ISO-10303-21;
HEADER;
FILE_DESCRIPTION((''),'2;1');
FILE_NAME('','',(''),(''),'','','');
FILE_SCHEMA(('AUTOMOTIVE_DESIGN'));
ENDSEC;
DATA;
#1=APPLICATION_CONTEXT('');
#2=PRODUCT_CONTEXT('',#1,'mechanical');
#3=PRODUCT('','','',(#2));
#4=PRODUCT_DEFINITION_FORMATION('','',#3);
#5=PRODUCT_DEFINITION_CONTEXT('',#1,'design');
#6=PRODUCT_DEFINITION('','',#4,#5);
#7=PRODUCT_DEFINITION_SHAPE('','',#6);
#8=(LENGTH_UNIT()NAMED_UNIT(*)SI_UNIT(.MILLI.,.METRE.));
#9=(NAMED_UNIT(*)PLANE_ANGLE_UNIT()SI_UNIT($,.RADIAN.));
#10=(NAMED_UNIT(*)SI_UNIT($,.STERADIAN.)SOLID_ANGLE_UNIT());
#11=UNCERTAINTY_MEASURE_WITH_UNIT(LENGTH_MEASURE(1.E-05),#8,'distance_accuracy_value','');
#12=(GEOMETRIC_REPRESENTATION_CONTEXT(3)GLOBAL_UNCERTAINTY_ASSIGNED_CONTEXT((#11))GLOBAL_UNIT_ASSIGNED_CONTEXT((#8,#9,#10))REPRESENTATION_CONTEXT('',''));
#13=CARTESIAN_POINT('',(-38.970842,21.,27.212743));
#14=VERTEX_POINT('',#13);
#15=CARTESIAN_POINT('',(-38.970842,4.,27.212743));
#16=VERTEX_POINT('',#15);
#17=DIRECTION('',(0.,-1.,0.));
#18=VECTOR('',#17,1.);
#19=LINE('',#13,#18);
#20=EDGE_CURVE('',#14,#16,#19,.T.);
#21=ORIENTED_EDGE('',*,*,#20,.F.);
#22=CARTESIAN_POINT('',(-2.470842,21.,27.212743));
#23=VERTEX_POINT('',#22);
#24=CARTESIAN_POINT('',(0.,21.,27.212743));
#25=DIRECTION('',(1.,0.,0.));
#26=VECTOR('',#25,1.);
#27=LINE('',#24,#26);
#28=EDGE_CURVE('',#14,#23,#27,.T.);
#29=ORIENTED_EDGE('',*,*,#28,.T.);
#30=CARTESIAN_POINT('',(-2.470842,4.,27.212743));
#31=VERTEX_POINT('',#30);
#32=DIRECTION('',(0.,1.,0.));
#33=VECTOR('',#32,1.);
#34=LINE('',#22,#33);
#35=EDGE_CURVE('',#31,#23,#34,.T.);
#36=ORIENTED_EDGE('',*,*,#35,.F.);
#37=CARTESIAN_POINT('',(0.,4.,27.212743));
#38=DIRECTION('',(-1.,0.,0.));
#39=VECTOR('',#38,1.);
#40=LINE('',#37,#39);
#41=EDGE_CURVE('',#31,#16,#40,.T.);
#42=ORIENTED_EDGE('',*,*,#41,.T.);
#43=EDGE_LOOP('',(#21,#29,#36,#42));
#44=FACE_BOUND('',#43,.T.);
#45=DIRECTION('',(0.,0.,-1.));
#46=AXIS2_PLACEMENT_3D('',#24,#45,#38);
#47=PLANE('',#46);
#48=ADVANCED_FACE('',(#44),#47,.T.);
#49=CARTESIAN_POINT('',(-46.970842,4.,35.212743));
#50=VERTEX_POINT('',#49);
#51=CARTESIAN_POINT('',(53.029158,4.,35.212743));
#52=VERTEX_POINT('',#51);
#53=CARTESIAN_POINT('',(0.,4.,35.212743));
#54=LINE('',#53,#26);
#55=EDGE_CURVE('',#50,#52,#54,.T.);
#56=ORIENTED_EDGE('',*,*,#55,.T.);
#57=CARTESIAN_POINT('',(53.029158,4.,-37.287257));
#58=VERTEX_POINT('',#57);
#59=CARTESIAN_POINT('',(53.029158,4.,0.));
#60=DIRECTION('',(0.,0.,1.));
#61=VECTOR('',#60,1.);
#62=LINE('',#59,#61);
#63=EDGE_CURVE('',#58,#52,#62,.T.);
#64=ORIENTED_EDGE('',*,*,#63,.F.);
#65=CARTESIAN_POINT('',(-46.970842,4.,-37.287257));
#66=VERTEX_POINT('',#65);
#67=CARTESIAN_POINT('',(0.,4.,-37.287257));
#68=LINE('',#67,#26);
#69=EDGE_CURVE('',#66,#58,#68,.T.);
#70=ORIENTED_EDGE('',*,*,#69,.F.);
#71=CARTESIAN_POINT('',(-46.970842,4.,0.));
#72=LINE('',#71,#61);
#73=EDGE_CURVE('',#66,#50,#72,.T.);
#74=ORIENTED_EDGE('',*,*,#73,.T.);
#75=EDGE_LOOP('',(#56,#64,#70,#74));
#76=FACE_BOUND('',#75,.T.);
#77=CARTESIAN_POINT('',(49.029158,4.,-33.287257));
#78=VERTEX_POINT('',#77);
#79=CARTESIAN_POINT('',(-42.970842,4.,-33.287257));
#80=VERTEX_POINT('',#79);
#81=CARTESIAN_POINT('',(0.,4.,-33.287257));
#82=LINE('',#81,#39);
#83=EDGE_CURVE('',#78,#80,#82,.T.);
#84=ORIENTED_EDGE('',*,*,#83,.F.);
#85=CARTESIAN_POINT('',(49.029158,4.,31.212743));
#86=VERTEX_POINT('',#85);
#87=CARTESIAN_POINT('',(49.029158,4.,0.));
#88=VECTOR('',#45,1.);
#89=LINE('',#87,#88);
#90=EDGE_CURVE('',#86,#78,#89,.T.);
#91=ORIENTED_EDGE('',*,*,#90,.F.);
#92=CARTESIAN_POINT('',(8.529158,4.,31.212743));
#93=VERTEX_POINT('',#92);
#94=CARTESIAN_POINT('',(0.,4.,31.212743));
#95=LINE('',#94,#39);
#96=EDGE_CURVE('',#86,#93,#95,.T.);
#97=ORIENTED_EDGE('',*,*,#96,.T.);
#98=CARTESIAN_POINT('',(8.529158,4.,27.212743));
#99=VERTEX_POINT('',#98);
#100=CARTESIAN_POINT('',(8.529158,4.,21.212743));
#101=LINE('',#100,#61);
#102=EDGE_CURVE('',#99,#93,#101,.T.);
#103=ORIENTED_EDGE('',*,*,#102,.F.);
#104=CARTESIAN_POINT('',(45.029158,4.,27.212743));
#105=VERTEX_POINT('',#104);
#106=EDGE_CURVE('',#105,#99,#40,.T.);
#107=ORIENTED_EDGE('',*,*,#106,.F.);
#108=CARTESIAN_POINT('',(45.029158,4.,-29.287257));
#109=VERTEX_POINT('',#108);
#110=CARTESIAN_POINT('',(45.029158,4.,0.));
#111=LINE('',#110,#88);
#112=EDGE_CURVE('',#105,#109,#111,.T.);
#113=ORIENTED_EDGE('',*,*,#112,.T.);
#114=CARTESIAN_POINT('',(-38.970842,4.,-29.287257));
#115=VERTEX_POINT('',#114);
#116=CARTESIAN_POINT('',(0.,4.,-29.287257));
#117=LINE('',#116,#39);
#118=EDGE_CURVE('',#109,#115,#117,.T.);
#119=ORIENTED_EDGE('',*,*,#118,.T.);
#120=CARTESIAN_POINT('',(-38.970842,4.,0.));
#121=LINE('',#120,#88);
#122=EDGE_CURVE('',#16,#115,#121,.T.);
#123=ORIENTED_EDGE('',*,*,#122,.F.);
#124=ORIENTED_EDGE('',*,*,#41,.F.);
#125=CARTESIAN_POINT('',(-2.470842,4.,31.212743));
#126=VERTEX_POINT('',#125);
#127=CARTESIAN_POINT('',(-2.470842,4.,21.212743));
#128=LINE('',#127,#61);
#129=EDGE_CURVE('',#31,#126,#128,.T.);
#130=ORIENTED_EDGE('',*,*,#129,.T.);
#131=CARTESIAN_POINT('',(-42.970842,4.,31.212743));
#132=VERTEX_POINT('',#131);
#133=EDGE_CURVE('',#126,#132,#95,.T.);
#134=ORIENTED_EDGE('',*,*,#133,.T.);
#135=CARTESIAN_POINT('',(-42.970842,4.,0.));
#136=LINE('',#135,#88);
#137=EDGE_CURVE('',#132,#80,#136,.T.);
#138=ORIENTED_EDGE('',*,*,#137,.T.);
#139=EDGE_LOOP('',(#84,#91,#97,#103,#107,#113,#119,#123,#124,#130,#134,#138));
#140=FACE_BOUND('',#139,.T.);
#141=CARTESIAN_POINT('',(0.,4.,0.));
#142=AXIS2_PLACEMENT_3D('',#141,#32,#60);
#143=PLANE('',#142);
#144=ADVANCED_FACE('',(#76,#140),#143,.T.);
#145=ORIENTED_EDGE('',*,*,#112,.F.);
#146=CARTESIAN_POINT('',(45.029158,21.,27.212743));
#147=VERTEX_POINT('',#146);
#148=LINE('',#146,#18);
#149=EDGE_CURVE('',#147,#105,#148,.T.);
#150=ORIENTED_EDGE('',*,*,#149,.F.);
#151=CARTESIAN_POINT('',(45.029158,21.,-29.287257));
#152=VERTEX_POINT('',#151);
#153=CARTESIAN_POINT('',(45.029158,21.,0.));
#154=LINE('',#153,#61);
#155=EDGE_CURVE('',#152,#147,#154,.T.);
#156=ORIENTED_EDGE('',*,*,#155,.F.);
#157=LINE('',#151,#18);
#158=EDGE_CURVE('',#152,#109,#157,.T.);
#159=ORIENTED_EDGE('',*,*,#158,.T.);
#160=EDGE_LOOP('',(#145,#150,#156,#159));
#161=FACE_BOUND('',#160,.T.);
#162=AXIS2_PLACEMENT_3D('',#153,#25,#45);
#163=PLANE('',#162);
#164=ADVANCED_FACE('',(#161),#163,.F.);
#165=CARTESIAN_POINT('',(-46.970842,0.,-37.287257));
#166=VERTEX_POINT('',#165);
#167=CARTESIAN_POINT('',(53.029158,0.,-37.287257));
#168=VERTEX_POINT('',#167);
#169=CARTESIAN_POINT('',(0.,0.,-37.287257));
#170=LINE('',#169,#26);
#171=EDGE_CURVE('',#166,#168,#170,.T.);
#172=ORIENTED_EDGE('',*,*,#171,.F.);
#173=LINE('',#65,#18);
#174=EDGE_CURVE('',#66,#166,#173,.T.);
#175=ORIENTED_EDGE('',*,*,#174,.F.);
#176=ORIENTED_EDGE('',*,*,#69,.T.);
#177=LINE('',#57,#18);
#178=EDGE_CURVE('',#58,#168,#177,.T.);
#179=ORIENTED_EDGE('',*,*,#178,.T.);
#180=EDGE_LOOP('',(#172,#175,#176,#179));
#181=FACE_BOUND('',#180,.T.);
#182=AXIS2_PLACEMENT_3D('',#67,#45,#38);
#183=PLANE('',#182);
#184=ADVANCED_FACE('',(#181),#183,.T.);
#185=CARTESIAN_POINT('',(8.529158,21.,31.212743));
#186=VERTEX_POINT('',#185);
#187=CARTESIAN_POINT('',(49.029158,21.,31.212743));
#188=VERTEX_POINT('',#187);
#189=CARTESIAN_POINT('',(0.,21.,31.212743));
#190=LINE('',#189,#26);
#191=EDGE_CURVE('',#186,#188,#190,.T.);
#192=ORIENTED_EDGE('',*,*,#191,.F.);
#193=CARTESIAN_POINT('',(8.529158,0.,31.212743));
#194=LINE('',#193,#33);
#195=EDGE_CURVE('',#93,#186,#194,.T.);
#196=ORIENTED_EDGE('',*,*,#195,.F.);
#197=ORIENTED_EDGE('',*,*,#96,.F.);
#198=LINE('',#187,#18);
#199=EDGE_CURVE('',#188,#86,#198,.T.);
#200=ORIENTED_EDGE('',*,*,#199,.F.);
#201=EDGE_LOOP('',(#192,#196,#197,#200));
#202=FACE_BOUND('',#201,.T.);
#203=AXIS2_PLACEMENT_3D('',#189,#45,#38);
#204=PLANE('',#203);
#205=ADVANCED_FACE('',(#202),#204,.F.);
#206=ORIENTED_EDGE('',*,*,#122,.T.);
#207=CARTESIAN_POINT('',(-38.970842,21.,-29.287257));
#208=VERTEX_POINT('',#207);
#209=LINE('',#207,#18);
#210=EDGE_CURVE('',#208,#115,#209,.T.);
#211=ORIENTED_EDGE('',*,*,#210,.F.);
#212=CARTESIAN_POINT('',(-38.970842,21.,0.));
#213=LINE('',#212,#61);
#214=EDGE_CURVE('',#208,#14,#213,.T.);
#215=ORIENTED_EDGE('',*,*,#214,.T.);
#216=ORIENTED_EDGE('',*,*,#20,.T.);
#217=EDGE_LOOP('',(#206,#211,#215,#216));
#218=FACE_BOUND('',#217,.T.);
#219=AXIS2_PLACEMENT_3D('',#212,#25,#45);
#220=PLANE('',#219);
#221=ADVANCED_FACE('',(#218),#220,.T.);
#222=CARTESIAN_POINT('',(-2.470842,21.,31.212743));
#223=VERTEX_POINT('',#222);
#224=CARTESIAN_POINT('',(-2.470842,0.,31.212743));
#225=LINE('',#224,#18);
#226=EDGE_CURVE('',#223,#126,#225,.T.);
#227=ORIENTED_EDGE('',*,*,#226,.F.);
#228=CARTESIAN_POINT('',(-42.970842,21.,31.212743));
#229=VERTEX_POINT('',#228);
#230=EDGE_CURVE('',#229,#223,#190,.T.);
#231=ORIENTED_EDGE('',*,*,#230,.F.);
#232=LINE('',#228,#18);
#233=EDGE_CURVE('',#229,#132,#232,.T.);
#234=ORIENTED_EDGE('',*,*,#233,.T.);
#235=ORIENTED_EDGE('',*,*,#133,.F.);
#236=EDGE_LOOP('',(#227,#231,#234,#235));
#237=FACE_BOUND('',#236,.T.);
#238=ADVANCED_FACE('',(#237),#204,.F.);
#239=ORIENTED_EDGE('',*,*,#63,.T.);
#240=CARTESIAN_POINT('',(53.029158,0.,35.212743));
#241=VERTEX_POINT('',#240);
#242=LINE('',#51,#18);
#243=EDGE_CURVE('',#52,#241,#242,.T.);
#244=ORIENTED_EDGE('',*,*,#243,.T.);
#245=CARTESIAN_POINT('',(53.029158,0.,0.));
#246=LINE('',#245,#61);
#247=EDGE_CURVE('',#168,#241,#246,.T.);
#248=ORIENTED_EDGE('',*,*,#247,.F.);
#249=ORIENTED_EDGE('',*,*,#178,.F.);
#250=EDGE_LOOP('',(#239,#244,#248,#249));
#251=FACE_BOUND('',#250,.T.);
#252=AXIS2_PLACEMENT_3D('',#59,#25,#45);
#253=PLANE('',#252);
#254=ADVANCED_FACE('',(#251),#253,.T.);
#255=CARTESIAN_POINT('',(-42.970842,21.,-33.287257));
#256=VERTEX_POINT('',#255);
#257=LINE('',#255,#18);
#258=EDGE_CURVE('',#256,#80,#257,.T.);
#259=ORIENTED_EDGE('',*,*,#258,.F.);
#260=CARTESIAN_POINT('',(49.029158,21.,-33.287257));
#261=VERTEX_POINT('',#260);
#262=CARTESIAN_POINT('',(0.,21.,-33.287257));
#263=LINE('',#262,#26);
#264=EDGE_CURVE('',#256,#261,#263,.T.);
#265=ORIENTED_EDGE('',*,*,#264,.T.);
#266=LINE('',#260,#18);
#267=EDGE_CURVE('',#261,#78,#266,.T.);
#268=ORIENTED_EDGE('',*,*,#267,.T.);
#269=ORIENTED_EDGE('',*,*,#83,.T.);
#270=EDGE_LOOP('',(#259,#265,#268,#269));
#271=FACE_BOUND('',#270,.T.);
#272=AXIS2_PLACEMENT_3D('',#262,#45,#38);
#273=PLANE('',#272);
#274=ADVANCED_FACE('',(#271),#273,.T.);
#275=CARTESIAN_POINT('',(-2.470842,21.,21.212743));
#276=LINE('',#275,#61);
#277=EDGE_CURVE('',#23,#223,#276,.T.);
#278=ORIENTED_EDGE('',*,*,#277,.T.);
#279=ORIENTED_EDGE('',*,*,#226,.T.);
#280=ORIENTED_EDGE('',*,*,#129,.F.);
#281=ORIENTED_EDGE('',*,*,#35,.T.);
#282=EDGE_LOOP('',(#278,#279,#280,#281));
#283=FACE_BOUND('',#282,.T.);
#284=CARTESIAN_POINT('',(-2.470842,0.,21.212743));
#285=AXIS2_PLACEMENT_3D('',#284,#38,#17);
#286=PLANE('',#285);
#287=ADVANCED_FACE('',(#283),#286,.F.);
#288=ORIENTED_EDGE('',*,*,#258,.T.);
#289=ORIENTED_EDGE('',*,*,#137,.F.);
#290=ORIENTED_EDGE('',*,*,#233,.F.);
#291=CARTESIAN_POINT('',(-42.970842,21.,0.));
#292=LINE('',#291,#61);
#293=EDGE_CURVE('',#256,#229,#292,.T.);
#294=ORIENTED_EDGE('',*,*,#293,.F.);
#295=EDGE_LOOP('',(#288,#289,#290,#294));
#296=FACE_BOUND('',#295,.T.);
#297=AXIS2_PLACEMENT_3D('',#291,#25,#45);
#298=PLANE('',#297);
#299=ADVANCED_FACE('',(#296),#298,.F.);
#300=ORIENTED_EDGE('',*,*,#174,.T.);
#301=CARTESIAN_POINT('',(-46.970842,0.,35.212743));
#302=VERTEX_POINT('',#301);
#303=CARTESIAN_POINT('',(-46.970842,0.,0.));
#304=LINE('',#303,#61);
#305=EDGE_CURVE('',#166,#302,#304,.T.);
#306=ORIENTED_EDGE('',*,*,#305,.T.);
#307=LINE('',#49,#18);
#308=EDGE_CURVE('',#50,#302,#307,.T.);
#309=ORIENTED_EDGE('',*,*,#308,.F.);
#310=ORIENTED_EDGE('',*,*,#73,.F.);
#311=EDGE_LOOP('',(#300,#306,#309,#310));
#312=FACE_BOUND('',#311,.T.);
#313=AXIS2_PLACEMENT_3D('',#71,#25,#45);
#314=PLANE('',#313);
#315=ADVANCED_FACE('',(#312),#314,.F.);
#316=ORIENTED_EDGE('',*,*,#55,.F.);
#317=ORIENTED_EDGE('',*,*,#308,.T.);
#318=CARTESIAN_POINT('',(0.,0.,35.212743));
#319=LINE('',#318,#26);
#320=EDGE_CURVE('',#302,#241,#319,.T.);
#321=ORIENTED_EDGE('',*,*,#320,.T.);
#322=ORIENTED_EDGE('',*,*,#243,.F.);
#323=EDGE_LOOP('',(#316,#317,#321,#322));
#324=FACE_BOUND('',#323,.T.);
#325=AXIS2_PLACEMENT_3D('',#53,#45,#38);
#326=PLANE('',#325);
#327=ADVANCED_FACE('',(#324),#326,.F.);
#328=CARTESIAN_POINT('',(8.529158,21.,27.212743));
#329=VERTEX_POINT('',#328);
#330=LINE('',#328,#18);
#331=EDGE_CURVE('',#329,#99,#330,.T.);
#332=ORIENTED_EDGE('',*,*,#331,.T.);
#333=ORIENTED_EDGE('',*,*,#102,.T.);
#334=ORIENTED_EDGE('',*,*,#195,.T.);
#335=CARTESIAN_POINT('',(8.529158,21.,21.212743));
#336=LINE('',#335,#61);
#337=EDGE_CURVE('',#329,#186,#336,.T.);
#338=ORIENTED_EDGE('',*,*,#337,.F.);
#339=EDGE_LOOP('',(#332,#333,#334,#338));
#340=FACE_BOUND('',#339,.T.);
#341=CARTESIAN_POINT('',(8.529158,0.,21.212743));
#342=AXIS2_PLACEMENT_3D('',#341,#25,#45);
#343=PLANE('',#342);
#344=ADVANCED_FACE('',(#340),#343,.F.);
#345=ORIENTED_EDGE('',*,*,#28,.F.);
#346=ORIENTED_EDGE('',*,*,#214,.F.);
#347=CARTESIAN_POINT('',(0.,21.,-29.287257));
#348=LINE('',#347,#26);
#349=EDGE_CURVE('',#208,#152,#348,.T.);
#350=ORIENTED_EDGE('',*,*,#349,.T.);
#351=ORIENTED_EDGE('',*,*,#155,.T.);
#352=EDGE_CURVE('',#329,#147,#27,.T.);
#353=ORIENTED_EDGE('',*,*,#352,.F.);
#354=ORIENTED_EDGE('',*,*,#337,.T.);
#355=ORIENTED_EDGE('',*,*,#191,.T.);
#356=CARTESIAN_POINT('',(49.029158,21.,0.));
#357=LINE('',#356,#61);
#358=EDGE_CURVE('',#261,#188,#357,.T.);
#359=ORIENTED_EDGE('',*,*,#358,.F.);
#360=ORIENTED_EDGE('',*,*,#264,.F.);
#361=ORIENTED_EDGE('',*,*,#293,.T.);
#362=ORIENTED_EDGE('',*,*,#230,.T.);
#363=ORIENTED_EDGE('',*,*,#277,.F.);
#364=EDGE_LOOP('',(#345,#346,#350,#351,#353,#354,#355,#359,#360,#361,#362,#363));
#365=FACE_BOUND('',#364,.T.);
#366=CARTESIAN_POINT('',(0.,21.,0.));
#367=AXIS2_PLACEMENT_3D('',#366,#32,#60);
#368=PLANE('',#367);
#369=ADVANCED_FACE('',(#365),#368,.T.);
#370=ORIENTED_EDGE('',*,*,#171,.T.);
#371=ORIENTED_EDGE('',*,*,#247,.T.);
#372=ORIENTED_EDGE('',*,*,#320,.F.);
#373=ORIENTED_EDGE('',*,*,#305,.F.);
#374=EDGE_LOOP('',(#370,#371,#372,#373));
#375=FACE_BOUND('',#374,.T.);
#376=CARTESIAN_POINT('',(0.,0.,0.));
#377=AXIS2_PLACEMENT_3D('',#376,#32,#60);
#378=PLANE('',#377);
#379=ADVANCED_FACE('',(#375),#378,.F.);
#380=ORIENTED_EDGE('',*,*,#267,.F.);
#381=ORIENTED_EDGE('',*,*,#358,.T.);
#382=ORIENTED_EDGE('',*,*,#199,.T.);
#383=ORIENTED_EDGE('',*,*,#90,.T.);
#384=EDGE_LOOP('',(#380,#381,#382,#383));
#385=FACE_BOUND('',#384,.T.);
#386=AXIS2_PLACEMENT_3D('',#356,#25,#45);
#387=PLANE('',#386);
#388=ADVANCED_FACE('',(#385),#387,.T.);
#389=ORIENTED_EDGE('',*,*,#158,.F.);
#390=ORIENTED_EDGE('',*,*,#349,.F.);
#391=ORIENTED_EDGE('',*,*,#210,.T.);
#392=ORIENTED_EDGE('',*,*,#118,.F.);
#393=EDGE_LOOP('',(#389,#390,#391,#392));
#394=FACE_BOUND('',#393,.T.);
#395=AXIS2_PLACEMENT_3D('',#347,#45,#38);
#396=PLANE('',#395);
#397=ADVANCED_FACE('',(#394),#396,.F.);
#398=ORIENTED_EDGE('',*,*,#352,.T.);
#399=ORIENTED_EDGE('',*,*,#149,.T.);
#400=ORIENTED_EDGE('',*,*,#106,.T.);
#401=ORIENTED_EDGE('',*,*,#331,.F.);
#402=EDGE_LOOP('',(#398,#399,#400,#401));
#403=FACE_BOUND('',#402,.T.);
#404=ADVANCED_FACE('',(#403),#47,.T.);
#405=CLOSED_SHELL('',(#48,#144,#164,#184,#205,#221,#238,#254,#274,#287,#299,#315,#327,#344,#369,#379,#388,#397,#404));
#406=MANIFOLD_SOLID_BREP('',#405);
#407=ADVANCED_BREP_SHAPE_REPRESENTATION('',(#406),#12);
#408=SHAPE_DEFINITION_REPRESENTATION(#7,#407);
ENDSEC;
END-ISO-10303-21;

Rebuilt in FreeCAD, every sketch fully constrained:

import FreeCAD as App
import Part
import Sketcher
Q = App.Units.Quantity

doc = App.newDocument("Part")
body = doc.addObject("PartDesign::Body", "Body")

# Sketch on XZ plane
sketch1 = body.newObject("Sketcher::SketchObject", "Sketch")
sketch1.AttachmentSupport = (doc.getObject("XZ_Plane"), [""])
sketch1.MapMode = "FlatFace"
sketch1.addGeometry([
    Part.LineSegment(App.Vector(53.029158, -37.287257, 0), App.Vector(-46.970842, -37.287257, 0)),
    Part.LineSegment(App.Vector(-46.970842, -37.287257, 0), App.Vector(-46.970842, 35.212743, 0)),
    Part.LineSegment(App.Vector(-46.970842, 35.212743, 0), App.Vector(53.029158, 35.212743, 0)),
    Part.LineSegment(App.Vector(53.029158, 35.212743, 0), App.Vector(53.029158, -37.287257, 0)),
], False)
sketch1.addConstraint([
    Sketcher.Constraint("Coincident", 0, 2, 1, 1),
    Sketcher.Constraint("Coincident", 1, 2, 2, 1),
    Sketcher.Constraint("Coincident", 2, 2, 3, 1),
    Sketcher.Constraint("Coincident", 3, 2, 0, 1),
    Sketcher.Constraint("Horizontal", 0),
    Sketcher.Constraint("Vertical", 1),
    Sketcher.Constraint("Horizontal", 2),
    Sketcher.Constraint("Vertical", 3),
    Sketcher.Constraint("DistanceX", 0, 2, 0, 1, Q("100 mm")),
    Sketcher.Constraint("DistanceY", 1, 1, 1, 2, Q("72.5 mm")),
    Sketcher.Constraint("DistanceX", 0, 2, -1, 1, Q("46.970842 mm")),
    Sketcher.Constraint("DistanceY", 0, 2, -1, 1, Q("37.287257 mm")),
])
pad1 = body.newObject("PartDesign::Pad", "Pad")
pad1.Profile = sketch1
pad1.Length = 4
pad1.Reversed = True

# Sketch on XZ plane
sketch2 = body.newObject("Sketcher::SketchObject", "Sketch001")
sketch2.AttachmentSupport = (doc.getObject("XZ_Plane"), [""])
sketch2.MapMode = "FlatFace"
sketch2.addGeometry([
    Part.LineSegment(App.Vector(-42.970842, 31.212743, 0), App.Vector(49.029158, 31.212743, 0)),  # 0
    Part.LineSegment(App.Vector(49.029158, 31.212743, 0), App.Vector(49.029158, -33.287257, 0)),  # 1
    Part.LineSegment(App.Vector(49.029158, -33.287257, 0), App.Vector(-42.970842, -33.287257, 0)),  # 2
    Part.LineSegment(App.Vector(-42.970842, -33.287257, 0), App.Vector(-42.970842, 31.212743, 0)),  # 3
    Part.LineSegment(App.Vector(45.029158, -29.287257, 0), App.Vector(45.029158, 27.212743, 0)),  # 4
    Part.LineSegment(App.Vector(45.029158, 27.212743, 0), App.Vector(-38.970842, 27.212743, 0)),  # 5
    Part.LineSegment(App.Vector(-38.970842, 27.212743, 0), App.Vector(-38.970842, -29.287257, 0)),  # 6
    Part.LineSegment(App.Vector(-38.970842, -29.287257, 0), App.Vector(45.029158, -29.287257, 0)),  # 7
], False)
sketch2.addConstraint([
    Sketcher.Constraint("Coincident", 0, 2, 1, 1),
    Sketcher.Constraint("Coincident", 1, 2, 2, 1),
    Sketcher.Constraint("Coincident", 2, 2, 3, 1),
    Sketcher.Constraint("Coincident", 3, 2, 0, 1),
    Sketcher.Constraint("Coincident", 4, 2, 5, 1),
    Sketcher.Constraint("Coincident", 5, 2, 6, 1),
    Sketcher.Constraint("Coincident", 6, 2, 7, 1),
    Sketcher.Constraint("Coincident", 7, 2, 4, 1),
    Sketcher.Constraint("Horizontal", 0),
    Sketcher.Constraint("Vertical", 1),
    Sketcher.Constraint("Horizontal", 2),
    Sketcher.Constraint("Vertical", 3),
    Sketcher.Constraint("Vertical", 4),
    Sketcher.Constraint("Horizontal", 5),
    Sketcher.Constraint("Vertical", 6),
    Sketcher.Constraint("Horizontal", 7),
    Sketcher.Constraint("DistanceX", 0, 1, 0, 2, Q("92 mm")),
    Sketcher.Constraint("DistanceX", 5, 2, 5, 1, Q("84 mm")),
    Sketcher.Constraint("DistanceY", 1, 2, 1, 1, Q("64.5 mm")),
    Sketcher.Constraint("DistanceY", 4, 1, 4, 2, Q("56.5 mm")),
    Sketcher.Constraint("DistanceX", 4, 2, 0, 2, Q("4 mm")),
    Sketcher.Constraint("DistanceY", 4, 2, 0, 2, Q("4 mm")),
    Sketcher.Constraint("DistanceX", -1, 1, 0, 2, Q("49.029158 mm")),
    Sketcher.Constraint("DistanceY", -1, 1, 0, 2, Q("31.212743 mm")),
])
pad2 = body.newObject("PartDesign::Pad", "Pad001")
pad2.Profile = sketch2
pad2.Length = 21
pad2.Reversed = True

# Sketch on XY plane
sketch3 = body.newObject("Sketcher::SketchObject", "Sketch002")
sketch3.AttachmentSupport = (doc.getObject("XY_Plane"), [""])
sketch3.MapMode = "FlatFace"
sketch3.AttachmentOffset = App.Placement(App.Vector(0, 0, 31.212743), App.Rotation())
sketch3.addGeometry([
    Part.LineSegment(App.Vector(8.529158, 21, 0), App.Vector(-2.470842, 21, 0)),
    Part.LineSegment(App.Vector(-2.470842, 21, 0), App.Vector(-2.470842, 4, 0)),
    Part.LineSegment(App.Vector(-2.470842, 4, 0), App.Vector(8.529158, 4, 0)),
    Part.LineSegment(App.Vector(8.529158, 4, 0), App.Vector(8.529158, 21, 0)),
], False)
sketch3.addConstraint([
    Sketcher.Constraint("Coincident", 0, 2, 1, 1),
    Sketcher.Constraint("Coincident", 1, 2, 2, 1),
    Sketcher.Constraint("Coincident", 2, 2, 3, 1),
    Sketcher.Constraint("Coincident", 3, 2, 0, 1),
    Sketcher.Constraint("Horizontal", 0),
    Sketcher.Constraint("Vertical", 1),
    Sketcher.Constraint("Horizontal", 2),
    Sketcher.Constraint("Vertical", 3),
    Sketcher.Constraint("DistanceX", 0, 2, 0, 1, Q("11 mm")),
    Sketcher.Constraint("DistanceY", 1, 2, 1, 1, Q("17 mm")),
    Sketcher.Constraint("DistanceY", -1, 1, 0, 2, Q("21 mm")),
    Sketcher.Constraint("DistanceX", 0, 2, -1, 1, Q("2.470842 mm")),
])
pocket1 = body.newObject("PartDesign::Pocket", "Pocket")
pocket1.Profile = sketch3
pocket1.Length = 10

doc.recompute()
